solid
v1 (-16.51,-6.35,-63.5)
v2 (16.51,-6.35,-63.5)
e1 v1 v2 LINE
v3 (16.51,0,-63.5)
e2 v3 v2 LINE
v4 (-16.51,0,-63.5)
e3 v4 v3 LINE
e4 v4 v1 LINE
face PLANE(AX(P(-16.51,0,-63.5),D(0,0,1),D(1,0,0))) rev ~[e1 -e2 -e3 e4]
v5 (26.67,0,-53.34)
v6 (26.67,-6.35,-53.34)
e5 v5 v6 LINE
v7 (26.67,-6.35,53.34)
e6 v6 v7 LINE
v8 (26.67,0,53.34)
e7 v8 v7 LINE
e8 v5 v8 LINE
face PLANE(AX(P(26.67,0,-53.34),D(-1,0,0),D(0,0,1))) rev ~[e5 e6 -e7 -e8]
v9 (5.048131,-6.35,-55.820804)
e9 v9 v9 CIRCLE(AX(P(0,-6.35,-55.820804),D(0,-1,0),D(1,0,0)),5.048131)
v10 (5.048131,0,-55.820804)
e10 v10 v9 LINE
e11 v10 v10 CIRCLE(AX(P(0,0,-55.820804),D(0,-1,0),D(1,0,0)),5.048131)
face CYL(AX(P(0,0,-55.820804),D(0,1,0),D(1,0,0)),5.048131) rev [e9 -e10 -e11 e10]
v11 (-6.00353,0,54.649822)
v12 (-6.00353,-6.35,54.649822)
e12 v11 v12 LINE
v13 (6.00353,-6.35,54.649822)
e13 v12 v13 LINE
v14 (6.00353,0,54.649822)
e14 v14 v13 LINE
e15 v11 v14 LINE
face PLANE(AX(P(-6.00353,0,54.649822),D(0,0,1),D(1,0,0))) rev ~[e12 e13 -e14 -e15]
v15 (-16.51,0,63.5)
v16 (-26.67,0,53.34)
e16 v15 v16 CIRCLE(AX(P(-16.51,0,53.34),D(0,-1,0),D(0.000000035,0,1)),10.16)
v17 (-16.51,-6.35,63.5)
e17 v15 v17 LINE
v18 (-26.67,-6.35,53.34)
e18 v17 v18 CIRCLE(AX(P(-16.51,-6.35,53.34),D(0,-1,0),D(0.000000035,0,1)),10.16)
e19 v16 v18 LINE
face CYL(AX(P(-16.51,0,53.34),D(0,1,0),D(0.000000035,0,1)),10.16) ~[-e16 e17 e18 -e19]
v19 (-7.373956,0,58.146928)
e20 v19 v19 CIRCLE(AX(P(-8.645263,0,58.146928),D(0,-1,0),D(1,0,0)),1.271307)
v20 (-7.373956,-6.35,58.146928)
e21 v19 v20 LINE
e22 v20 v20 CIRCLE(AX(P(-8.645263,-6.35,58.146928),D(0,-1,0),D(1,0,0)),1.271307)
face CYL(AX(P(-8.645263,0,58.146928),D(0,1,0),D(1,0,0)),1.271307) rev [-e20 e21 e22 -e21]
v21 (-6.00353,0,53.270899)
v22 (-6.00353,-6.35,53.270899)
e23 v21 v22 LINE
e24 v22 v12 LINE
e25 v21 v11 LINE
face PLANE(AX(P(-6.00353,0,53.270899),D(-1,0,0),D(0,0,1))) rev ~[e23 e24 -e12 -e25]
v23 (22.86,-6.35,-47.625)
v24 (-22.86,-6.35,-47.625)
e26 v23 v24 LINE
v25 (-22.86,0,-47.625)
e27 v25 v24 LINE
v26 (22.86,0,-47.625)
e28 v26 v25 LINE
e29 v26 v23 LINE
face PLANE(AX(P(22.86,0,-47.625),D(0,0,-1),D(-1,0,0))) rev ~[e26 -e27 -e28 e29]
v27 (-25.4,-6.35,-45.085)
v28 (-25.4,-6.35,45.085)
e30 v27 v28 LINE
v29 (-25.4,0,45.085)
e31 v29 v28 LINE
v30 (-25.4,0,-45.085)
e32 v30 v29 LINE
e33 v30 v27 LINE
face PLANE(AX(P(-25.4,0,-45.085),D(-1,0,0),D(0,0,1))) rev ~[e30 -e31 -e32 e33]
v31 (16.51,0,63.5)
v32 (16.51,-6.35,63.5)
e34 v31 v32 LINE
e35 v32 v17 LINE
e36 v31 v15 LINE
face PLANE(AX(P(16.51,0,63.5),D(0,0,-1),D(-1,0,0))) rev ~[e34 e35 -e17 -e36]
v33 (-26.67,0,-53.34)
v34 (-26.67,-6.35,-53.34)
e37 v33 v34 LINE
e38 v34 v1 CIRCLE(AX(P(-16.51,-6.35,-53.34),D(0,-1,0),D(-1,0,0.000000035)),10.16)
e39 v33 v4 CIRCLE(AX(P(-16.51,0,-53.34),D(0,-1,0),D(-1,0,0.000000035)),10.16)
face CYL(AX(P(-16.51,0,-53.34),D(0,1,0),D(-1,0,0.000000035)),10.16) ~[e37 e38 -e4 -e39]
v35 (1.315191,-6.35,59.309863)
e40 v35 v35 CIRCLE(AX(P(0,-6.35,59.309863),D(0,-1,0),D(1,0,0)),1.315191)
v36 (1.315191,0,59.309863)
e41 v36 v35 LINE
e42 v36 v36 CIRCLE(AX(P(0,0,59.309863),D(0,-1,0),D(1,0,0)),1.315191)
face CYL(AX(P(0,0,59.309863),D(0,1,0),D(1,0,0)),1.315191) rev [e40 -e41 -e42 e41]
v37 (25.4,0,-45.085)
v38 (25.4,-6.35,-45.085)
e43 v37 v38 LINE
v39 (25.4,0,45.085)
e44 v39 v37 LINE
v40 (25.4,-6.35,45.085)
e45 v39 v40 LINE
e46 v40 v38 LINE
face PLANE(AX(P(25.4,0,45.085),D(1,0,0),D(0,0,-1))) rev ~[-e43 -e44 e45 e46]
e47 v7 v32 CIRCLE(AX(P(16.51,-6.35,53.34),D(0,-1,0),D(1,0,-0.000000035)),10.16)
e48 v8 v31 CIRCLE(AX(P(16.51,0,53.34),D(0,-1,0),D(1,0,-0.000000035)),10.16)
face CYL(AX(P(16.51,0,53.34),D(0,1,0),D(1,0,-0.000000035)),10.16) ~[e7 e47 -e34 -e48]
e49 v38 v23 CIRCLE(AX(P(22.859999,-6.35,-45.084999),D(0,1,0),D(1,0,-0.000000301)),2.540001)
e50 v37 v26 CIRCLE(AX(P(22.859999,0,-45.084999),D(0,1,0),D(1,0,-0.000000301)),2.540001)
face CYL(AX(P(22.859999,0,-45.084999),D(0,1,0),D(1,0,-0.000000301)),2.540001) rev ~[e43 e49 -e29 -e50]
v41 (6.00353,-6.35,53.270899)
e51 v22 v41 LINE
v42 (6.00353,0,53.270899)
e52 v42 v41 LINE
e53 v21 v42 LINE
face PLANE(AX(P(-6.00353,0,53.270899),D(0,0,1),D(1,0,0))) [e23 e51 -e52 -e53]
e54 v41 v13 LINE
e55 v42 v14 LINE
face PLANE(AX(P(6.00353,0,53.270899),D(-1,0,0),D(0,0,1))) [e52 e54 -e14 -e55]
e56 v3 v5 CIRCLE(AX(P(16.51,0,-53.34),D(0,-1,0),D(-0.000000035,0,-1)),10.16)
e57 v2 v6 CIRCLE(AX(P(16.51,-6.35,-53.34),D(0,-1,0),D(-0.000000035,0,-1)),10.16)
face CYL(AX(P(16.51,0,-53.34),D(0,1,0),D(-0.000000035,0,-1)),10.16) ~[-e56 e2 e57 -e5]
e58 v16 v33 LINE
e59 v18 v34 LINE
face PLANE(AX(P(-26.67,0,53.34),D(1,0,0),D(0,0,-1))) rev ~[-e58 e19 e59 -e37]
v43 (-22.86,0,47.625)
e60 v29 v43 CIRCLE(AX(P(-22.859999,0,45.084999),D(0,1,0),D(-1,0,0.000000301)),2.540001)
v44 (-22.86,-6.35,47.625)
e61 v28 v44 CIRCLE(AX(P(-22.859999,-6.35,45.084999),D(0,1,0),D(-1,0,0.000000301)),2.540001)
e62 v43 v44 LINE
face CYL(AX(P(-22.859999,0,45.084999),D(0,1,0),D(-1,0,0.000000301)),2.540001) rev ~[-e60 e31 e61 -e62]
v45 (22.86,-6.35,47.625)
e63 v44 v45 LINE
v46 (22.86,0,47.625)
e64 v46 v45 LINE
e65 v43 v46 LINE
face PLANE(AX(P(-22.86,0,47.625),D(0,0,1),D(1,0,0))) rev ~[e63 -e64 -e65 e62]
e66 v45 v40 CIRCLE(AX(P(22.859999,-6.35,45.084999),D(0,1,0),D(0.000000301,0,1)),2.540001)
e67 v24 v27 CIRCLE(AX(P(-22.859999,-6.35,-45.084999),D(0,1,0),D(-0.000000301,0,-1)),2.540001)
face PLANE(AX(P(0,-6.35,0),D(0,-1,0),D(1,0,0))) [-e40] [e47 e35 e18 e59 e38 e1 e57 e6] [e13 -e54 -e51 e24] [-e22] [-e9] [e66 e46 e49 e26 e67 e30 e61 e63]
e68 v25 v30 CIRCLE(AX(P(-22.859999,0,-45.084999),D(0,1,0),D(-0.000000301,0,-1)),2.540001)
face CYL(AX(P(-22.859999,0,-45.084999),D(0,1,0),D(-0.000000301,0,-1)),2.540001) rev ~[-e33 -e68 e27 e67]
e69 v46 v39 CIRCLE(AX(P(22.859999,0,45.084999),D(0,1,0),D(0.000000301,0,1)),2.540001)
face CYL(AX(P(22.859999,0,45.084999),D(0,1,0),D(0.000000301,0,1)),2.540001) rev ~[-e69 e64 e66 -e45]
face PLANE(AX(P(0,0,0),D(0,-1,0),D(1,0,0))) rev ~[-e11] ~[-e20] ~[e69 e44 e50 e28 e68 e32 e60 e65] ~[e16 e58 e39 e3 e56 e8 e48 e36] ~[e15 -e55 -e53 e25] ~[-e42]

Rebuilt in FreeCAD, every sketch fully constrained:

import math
import FreeCAD as App
import Part
import Sketcher
from FreeCAD import Vector
Q = App.Units.Quantity


def add_polygon(sketch, points):
    """Adds a closed chain of lines whose ends are joined by coincident constraints."""
    first, n = sketch.GeometryCount, len(points)
    for a, b in zip(points, points[1:] + points[:1]):
        sketch.addGeometry(Part.LineSegment(App.Vector(*a, 0), App.Vector(*b, 0)), False)
    for i in range(n):
        sketch.addConstraint(Sketcher.Constraint("Coincident", first + i, 2, first + (i + 1) % n, 1))

doc = App.newDocument("Part")
body = doc.addObject("PartDesign::Body", "Body")

sketch1 = body.newObject("Sketcher::SketchObject", "Sketch")
sketch1.AttachmentSupport = (doc.getObject("XZ_Plane"), [""])
sketch1.MapMode = "FlatFace"
sketch1.addGeometry(Part.ArcOfCircle(Part.Circle(Vector(-16.5, -53.3, 0), Vector(0, 0, 1), 10.2), math.radians(180), math.radians(270)), False)
sketch1.addGeometry(Part.LineSegment(Vector(-16.5, -63.5, 0), Vector(16.5, -63.5, 0)), False)
sketch1.addGeometry(Part.ArcOfCircle(Part.Circle(Vector(16.5, -53.3, 0), Vector(0, 0, 1), 10.2), math.radians(-90), math.radians(0)), False)
sketch1.addGeometry(Part.LineSegment(Vector(26.7, -53.3, 0), Vector(26.7, 53.3, 0)), False)
sketch1.addGeometry(Part.ArcOfCircle(Part.Circle(Vector(16.5, 53.3, 0), Vector(0, 0, 1), 10.2), math.radians(0), math.radians(90)), False)
sketch1.addGeometry(Part.LineSegment(Vector(16.5, 63.5, 0), Vector(-16.5, 63.5, 0)), False)
sketch1.addGeometry(Part.ArcOfCircle(Part.Circle(Vector(-16.5, 53.3, 0), Vector(0, 0, 1), 10.2), math.radians(90), math.radians(180)), False)
sketch1.addGeometry(Part.LineSegment(Vector(-26.7, 53.3, 0), Vector(-26.7, -53.3, 0)), False)
sketch1.addGeometry(Part.Circle(Vector(0, -55.8, 0), Vector(0, 0, 1), 5), False)
sketch1.addGeometry(Part.Circle(Vector(-8.6, 58.1, 0), Vector(0, 0, 1), 1.3), False)
sketch1.addGeometry(Part.ArcOfCircle(Part.Circle(Vector(22.9, -45.1, 0), Vector(0, 0, 1), 2.5), math.radians(-90), math.radians(0)), False)
sketch1.addGeometry(Part.LineSegment(Vector(22.9, -47.6, 0), Vector(-22.9, -47.6, 0)), False)
sketch1.addGeometry(Part.ArcOfCircle(Part.Circle(Vector(-22.9, -45.1, 0), Vector(0, 0, 1), 2.5), math.radians(-180), math.radians(-90)), False)
sketch1.addGeometry(Part.LineSegment(Vector(-25.4, -45.1, 0), Vector(-25.4, 45.1, 0)), False)
sketch1.addGeometry(Part.ArcOfCircle(Part.Circle(Vector(-22.9, 45.1, 0), Vector(0, 0, 1), 2.5), math.radians(90), math.radians(180)), False)
sketch1.addGeometry(Part.LineSegment(Vector(-22.9, 47.6, 0), Vector(22.9, 47.6, 0)), False)
sketch1.addGeometry(Part.ArcOfCircle(Part.Circle(Vector(22.9, 45.1, 0), Vector(0, 0, 1), 2.5), math.radians(0), math.radians(90)), False)
sketch1.addGeometry(Part.LineSegment(Vector(25.4, 45.1, 0), Vector(25.4, -45.1, 0)), False)
add_polygon(sketch1, [(6, 53.3), (-6, 53.3), (-6, 54.6), (6, 54.6)])
sketch1.addGeometry(Part.Circle(Vector(0, 59.3, 0), Vector(0, 0, 1), 1.3), False)
sketch1.addConstraint([
    Sketcher.Constraint("Tangent", 0, 2, 1, 1),
    Sketcher.Constraint("Tangent", 1, 2, 2, 1),
    Sketcher.Constraint("Tangent", 2, 2, 3, 1),
    Sketcher.Constraint("Tangent", 3, 2, 4, 1),
    Sketcher.Constraint("Tangent", 4, 2, 5, 1),
    Sketcher.Constraint("Tangent", 5, 2, 6, 1),
    Sketcher.Constraint("Tangent", 6, 2, 7, 1),
    Sketcher.Constraint("Tangent", 7, 2, 0, 1),
    Sketcher.Constraint("Tangent", 10, 1, 11, 1),
    Sketcher.Constraint("Tangent", 11, 2, 12, 2),
    Sketcher.Constraint("Tangent", 12, 1, 13, 1),
    Sketcher.Constraint("Tangent", 13, 2, 14, 2),
    Sketcher.Constraint("Tangent", 14, 1, 15, 1),
    Sketcher.Constraint("Tangent", 15, 2, 16, 2),
    Sketcher.Constraint("Tangent", 16, 1, 17, 1),
    Sketcher.Constraint("Tangent", 17, 2, 10, 2),
    Sketcher.Constraint("Horizontal", 1),
    Sketcher.Constraint("Vertical", 3),
    Sketcher.Constraint("Horizontal", 5),
    Sketcher.Constraint("Vertical", 7),
    Sketcher.Constraint("Horizontal", 11),
    Sketcher.Constraint("Vertical", 13),
    Sketcher.Constraint("Horizontal", 15),
    Sketcher.Constraint("Vertical", 17),
    Sketcher.Constraint("Horizontal", 18),
    Sketcher.Constraint("Vertical", 19),
    Sketcher.Constraint("Horizontal", 20),
    Sketcher.Constraint("Vertical", 21),
    Sketcher.Constraint("Equal", 0, 2),
    Sketcher.Constraint("Equal", 2, 4),
    Sketcher.Constraint("Equal", 4, 6),
    Sketcher.Constraint("Equal", 10, 12),
    Sketcher.Constraint("Equal", 12, 14),
    Sketcher.Constraint("Equal", 14, 16),
    Sketcher.Constraint("Symmetric", 0, 3, 4, 3, -1, 1),
    Sketcher.Constraint("Symmetric", 10, 3, 14, 3, -1, 1),
    Sketcher.Constraint("PointOnObject", 8, 3, -2),
    Sketcher.Constraint("PointOnObject", 22, 3, -2),
    Sketcher.Constraint("Radius", 0, Q("0.4 in")),
    Sketcher.Constraint("Radius", 10, Q("0.1 in")),
    Sketcher.Constraint("DistanceX", 1, 1, 1, 2, Q("1.3 in")),
    Sketcher.Constraint("DistanceX", 11, 2, 11, 1, Q("1.8 in")),
    Sketcher.Constraint("DistanceY", 3, 1, 3, 2, Q("4.2 in")),
    Sketcher.Constraint("DistanceY", 13, 1, 13, 2, Q("3.55 in")),
    Sketcher.Constraint("Diameter", 22, 2.630382),
    Sketcher.Constraint("Diameter", 8, 10.096262),
    Sketcher.Constraint("Diameter", 9, 2.542614),
    Sketcher.Constraint("DistanceX", 18, 2, 18, 1, 12.00706),
    Sketcher.Constraint("DistanceY", -1, 1, 18, 2, 53.270899),
    Sketcher.Constraint("DistanceY", 19, 1, 19, 2, 1.378923),
    Sketcher.Constraint("DistanceY", -1, 1, 9, 3, 58.146928),
    Sketcher.Constraint("DistanceX", 18, 2, -1, 1, 6.00353),
    Sketcher.Constraint("DistanceY", 19, 2, 22, 3, 4.660041),
    Sketcher.Constraint("DistanceY", 8, 3, -1, 1, 55.820804),
    Sketcher.Constraint("DistanceX", 9, 3, -1, 1, 8.645263),
])
pad1 = body.newObject("PartDesign::Pad", "Pad")
pad1.Profile = sketch1
pad1.Length = Q("0.25 in")

doc.recompute()
